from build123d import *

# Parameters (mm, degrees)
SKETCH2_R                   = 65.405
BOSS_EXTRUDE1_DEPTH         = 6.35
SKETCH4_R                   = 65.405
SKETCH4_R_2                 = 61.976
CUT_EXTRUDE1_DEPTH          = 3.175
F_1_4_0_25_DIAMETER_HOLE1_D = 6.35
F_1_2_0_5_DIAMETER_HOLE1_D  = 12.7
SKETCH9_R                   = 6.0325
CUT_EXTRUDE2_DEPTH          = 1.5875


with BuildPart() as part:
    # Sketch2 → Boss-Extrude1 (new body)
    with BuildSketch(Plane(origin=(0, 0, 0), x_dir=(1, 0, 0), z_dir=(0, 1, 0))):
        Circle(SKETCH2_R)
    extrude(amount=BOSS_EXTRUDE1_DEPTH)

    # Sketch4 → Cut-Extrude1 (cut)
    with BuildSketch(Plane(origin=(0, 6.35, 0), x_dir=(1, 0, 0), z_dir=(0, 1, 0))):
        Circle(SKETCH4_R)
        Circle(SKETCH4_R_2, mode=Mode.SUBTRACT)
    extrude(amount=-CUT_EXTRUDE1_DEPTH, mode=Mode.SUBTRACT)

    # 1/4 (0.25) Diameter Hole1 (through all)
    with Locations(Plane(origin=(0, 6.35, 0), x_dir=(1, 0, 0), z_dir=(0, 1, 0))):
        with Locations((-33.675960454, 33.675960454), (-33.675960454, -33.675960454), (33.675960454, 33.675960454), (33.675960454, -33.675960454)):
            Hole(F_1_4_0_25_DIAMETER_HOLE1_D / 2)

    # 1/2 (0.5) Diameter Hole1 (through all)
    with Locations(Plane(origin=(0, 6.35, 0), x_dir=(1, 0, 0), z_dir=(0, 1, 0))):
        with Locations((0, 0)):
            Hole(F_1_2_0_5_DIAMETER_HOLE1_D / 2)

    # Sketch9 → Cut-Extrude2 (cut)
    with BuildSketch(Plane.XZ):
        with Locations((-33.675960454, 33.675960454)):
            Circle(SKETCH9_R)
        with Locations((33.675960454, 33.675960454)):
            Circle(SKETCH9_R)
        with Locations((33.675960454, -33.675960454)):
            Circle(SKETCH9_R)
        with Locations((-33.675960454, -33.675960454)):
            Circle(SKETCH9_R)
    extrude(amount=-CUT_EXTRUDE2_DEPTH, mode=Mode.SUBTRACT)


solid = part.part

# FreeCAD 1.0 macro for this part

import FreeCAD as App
import Part
import Sketcher

V = App.Vector
Q = App.Units.Quantity

doc = App.newDocument("Part")
body = doc.addObject("PartDesign::Body", "Body")

sketch1 = body.newObject("Sketcher::SketchObject", "Sketch")
sketch1.AttachmentSupport = (doc.getObject("XZ_Plane"), [""])
sketch1.MapMode = "FlatFace"
sketch1.addGeometry(Part.Circle(V(0, 0, 0), V(0, 0, 1), 65), False)
sketch1.addConstraint([
    Sketcher.Constraint("Coincident", 0, 3, -1, 1),
    Sketcher.Constraint("Diameter", 0, Q("5.15 in")),
])
pad1 = body.newObject("PartDesign::Pad", "Pad")
pad1.Profile = sketch1
pad1.Length = Q("0.25 in")
pad1.Reversed = True

sketch2 = body.newObject("Sketcher::SketchObject", "Sketch001")
sketch2.AttachmentSupport = (doc.getObject("XZ_Plane"), [""])
sketch2.MapMode = "FlatFace"
sketch2.AttachmentOffset = App.Placement(V(0, 0, -0.25 * 25.4), App.Rotation())
sketch2.addGeometry([
    Part.Circle(V(0, 0, 0), V(0, 0, 1), 65),
    Part.Circle(V(0, 0, 0), V(0, 0, 1), 62),
], False)
sketch2.addConstraint([
    Sketcher.Constraint("Coincident", 0, 3, -1, 1),
    Sketcher.Constraint("Coincident", 1, 3, -1, 1),
    Sketcher.Constraint("Diameter", 0, Q("5.15 in")),
    Sketcher.Constraint("Diameter", 1, Q("4.88 in")),
])
pocket1 = body.newObject("PartDesign::Pocket", "Pocket")
pocket1.Profile = sketch2
pocket1.Length = Q("0.125 in")
pocket1.Reversed = True

sketch3 = body.newObject("Sketcher::SketchObject", "Sketch002")
sketch3.AttachmentSupport = (doc.getObject("XZ_Plane"), [""])
sketch3.MapMode = "FlatFace"
sketch3.AttachmentOffset = App.Placement(V(0, 0, -0.25 * 25.4), App.Rotation())
sketch3.addGeometry([
    Part.Circle(V(-33.7, -33.7, 0), V(0, 0, 1), 3.2),
    Part.Circle(V(-33.7, 33.7, 0), V(0, 0, 1), 3.2),
    Part.Circle(V(33.7, -33.7, 0), V(0, 0, 1), 3.2),
    Part.Circle(V(33.7, 33.7, 0), V(0, 0, 1), 3.2),
], False)
sketch3.addConstraint([
    Sketcher.Constraint("Equal", 0, 1),
    Sketcher.Constraint("Equal", 1, 2),
    Sketcher.Constraint("Equal", 2, 3),
    Sketcher.Constraint("Symmetric", 1, 3, 2, 3, -1, 1),
    Sketcher.Constraint("Symmetric", 0, 3, 3, 3, -1, 1),
    Sketcher.Constraint("Symmetric", 0, 3, 2, 3, -2),
    Sketcher.Constraint("Diameter", 0, Q("0.25 in")),
    Sketcher.Constraint("DistanceX", 0, 3, -1, 1, Q("33.67596 mm")),
    Sketcher.Constraint("DistanceY", 0, 3, -1, 1, Q("33.67596 mm")),
])
doc.recompute()
hole = body.newObject("PartDesign::Hole", "Hole")
hole.Profile = sketch3
hole.ThreadType = "None"
hole.Diameter = Q("0.25 in")
hole.DepthType = "ThroughAll"
hole.Reversed = True

sketch4 = body.newObject("Sketcher::SketchObject", "Sketch003")
sketch4.AttachmentSupport = (doc.getObject("XZ_Plane"), [""])
sketch4.MapMode = "FlatFace"
sketch4.AttachmentOffset = App.Placement(V(0, 0, -0.25 * 25.4), App.Rotation())
sketch4.addGeometry(Part.Circle(V(0, 0, 0), V(0, 0, 1), 6), False)
sketch4.addConstraint([
    Sketcher.Constraint("Coincident", 0, 3, -1, 1),
    Sketcher.Constraint("Diameter", 0, Q("0.5 in")),
])
doc.recompute()
hole2 = body.newObject("PartDesign::Hole", "Hole001")
hole2.Profile = sketch4
hole2.ThreadType = "None"
hole2.Diameter = Q("0.5 in")
hole2.DepthType = "ThroughAll"
hole2.Reversed = True

sketch5 = body.newObject("Sketcher::SketchObject", "Sketch004")
sketch5.AttachmentSupport = (doc.getObject("XZ_Plane"), [""])
sketch5.MapMode = "FlatFace"
sketch5.addGeometry([
    Part.Circle(V(-34, 34, 0), V(0, 0, 1), 6),
    Part.Circle(V(34, 34, 0), V(0, 0, 1), 6),
    Part.Circle(V(34, -34, 0), V(0, 0, 1), 6),
    Part.Circle(V(-34, -34, 0), V(0, 0, 1), 6),
], False)
sketch5.addConstraint([
    Sketcher.Constraint("Equal", 0, 1),
    Sketcher.Constraint("Equal", 1, 2),
    Sketcher.Constraint("Equal", 2, 3),
    Sketcher.Constraint("Symmetric", 0, 3, 2, 3, -1, 1),
    Sketcher.Constraint("Symmetric", 1, 3, 3, 3, -1, 1),
    Sketcher.Constraint("Symmetric", 0, 3, 1, 3, -2),
    Sketcher.Constraint("Diameter", 0, Q("0.475 in")),
    Sketcher.Constraint("DistanceX", 0, 3, -1, 1, Q("33.67596 mm")),
    Sketcher.Constraint("DistanceY", -1, 1, 0, 3, Q("33.67596 mm")),
])
pocket2 = body.newObject("PartDesign::Pocket", "Pocket001")
pocket2.Profile = sketch5
pocket2.Length = Q("0.0625 in")

doc.recompute()
